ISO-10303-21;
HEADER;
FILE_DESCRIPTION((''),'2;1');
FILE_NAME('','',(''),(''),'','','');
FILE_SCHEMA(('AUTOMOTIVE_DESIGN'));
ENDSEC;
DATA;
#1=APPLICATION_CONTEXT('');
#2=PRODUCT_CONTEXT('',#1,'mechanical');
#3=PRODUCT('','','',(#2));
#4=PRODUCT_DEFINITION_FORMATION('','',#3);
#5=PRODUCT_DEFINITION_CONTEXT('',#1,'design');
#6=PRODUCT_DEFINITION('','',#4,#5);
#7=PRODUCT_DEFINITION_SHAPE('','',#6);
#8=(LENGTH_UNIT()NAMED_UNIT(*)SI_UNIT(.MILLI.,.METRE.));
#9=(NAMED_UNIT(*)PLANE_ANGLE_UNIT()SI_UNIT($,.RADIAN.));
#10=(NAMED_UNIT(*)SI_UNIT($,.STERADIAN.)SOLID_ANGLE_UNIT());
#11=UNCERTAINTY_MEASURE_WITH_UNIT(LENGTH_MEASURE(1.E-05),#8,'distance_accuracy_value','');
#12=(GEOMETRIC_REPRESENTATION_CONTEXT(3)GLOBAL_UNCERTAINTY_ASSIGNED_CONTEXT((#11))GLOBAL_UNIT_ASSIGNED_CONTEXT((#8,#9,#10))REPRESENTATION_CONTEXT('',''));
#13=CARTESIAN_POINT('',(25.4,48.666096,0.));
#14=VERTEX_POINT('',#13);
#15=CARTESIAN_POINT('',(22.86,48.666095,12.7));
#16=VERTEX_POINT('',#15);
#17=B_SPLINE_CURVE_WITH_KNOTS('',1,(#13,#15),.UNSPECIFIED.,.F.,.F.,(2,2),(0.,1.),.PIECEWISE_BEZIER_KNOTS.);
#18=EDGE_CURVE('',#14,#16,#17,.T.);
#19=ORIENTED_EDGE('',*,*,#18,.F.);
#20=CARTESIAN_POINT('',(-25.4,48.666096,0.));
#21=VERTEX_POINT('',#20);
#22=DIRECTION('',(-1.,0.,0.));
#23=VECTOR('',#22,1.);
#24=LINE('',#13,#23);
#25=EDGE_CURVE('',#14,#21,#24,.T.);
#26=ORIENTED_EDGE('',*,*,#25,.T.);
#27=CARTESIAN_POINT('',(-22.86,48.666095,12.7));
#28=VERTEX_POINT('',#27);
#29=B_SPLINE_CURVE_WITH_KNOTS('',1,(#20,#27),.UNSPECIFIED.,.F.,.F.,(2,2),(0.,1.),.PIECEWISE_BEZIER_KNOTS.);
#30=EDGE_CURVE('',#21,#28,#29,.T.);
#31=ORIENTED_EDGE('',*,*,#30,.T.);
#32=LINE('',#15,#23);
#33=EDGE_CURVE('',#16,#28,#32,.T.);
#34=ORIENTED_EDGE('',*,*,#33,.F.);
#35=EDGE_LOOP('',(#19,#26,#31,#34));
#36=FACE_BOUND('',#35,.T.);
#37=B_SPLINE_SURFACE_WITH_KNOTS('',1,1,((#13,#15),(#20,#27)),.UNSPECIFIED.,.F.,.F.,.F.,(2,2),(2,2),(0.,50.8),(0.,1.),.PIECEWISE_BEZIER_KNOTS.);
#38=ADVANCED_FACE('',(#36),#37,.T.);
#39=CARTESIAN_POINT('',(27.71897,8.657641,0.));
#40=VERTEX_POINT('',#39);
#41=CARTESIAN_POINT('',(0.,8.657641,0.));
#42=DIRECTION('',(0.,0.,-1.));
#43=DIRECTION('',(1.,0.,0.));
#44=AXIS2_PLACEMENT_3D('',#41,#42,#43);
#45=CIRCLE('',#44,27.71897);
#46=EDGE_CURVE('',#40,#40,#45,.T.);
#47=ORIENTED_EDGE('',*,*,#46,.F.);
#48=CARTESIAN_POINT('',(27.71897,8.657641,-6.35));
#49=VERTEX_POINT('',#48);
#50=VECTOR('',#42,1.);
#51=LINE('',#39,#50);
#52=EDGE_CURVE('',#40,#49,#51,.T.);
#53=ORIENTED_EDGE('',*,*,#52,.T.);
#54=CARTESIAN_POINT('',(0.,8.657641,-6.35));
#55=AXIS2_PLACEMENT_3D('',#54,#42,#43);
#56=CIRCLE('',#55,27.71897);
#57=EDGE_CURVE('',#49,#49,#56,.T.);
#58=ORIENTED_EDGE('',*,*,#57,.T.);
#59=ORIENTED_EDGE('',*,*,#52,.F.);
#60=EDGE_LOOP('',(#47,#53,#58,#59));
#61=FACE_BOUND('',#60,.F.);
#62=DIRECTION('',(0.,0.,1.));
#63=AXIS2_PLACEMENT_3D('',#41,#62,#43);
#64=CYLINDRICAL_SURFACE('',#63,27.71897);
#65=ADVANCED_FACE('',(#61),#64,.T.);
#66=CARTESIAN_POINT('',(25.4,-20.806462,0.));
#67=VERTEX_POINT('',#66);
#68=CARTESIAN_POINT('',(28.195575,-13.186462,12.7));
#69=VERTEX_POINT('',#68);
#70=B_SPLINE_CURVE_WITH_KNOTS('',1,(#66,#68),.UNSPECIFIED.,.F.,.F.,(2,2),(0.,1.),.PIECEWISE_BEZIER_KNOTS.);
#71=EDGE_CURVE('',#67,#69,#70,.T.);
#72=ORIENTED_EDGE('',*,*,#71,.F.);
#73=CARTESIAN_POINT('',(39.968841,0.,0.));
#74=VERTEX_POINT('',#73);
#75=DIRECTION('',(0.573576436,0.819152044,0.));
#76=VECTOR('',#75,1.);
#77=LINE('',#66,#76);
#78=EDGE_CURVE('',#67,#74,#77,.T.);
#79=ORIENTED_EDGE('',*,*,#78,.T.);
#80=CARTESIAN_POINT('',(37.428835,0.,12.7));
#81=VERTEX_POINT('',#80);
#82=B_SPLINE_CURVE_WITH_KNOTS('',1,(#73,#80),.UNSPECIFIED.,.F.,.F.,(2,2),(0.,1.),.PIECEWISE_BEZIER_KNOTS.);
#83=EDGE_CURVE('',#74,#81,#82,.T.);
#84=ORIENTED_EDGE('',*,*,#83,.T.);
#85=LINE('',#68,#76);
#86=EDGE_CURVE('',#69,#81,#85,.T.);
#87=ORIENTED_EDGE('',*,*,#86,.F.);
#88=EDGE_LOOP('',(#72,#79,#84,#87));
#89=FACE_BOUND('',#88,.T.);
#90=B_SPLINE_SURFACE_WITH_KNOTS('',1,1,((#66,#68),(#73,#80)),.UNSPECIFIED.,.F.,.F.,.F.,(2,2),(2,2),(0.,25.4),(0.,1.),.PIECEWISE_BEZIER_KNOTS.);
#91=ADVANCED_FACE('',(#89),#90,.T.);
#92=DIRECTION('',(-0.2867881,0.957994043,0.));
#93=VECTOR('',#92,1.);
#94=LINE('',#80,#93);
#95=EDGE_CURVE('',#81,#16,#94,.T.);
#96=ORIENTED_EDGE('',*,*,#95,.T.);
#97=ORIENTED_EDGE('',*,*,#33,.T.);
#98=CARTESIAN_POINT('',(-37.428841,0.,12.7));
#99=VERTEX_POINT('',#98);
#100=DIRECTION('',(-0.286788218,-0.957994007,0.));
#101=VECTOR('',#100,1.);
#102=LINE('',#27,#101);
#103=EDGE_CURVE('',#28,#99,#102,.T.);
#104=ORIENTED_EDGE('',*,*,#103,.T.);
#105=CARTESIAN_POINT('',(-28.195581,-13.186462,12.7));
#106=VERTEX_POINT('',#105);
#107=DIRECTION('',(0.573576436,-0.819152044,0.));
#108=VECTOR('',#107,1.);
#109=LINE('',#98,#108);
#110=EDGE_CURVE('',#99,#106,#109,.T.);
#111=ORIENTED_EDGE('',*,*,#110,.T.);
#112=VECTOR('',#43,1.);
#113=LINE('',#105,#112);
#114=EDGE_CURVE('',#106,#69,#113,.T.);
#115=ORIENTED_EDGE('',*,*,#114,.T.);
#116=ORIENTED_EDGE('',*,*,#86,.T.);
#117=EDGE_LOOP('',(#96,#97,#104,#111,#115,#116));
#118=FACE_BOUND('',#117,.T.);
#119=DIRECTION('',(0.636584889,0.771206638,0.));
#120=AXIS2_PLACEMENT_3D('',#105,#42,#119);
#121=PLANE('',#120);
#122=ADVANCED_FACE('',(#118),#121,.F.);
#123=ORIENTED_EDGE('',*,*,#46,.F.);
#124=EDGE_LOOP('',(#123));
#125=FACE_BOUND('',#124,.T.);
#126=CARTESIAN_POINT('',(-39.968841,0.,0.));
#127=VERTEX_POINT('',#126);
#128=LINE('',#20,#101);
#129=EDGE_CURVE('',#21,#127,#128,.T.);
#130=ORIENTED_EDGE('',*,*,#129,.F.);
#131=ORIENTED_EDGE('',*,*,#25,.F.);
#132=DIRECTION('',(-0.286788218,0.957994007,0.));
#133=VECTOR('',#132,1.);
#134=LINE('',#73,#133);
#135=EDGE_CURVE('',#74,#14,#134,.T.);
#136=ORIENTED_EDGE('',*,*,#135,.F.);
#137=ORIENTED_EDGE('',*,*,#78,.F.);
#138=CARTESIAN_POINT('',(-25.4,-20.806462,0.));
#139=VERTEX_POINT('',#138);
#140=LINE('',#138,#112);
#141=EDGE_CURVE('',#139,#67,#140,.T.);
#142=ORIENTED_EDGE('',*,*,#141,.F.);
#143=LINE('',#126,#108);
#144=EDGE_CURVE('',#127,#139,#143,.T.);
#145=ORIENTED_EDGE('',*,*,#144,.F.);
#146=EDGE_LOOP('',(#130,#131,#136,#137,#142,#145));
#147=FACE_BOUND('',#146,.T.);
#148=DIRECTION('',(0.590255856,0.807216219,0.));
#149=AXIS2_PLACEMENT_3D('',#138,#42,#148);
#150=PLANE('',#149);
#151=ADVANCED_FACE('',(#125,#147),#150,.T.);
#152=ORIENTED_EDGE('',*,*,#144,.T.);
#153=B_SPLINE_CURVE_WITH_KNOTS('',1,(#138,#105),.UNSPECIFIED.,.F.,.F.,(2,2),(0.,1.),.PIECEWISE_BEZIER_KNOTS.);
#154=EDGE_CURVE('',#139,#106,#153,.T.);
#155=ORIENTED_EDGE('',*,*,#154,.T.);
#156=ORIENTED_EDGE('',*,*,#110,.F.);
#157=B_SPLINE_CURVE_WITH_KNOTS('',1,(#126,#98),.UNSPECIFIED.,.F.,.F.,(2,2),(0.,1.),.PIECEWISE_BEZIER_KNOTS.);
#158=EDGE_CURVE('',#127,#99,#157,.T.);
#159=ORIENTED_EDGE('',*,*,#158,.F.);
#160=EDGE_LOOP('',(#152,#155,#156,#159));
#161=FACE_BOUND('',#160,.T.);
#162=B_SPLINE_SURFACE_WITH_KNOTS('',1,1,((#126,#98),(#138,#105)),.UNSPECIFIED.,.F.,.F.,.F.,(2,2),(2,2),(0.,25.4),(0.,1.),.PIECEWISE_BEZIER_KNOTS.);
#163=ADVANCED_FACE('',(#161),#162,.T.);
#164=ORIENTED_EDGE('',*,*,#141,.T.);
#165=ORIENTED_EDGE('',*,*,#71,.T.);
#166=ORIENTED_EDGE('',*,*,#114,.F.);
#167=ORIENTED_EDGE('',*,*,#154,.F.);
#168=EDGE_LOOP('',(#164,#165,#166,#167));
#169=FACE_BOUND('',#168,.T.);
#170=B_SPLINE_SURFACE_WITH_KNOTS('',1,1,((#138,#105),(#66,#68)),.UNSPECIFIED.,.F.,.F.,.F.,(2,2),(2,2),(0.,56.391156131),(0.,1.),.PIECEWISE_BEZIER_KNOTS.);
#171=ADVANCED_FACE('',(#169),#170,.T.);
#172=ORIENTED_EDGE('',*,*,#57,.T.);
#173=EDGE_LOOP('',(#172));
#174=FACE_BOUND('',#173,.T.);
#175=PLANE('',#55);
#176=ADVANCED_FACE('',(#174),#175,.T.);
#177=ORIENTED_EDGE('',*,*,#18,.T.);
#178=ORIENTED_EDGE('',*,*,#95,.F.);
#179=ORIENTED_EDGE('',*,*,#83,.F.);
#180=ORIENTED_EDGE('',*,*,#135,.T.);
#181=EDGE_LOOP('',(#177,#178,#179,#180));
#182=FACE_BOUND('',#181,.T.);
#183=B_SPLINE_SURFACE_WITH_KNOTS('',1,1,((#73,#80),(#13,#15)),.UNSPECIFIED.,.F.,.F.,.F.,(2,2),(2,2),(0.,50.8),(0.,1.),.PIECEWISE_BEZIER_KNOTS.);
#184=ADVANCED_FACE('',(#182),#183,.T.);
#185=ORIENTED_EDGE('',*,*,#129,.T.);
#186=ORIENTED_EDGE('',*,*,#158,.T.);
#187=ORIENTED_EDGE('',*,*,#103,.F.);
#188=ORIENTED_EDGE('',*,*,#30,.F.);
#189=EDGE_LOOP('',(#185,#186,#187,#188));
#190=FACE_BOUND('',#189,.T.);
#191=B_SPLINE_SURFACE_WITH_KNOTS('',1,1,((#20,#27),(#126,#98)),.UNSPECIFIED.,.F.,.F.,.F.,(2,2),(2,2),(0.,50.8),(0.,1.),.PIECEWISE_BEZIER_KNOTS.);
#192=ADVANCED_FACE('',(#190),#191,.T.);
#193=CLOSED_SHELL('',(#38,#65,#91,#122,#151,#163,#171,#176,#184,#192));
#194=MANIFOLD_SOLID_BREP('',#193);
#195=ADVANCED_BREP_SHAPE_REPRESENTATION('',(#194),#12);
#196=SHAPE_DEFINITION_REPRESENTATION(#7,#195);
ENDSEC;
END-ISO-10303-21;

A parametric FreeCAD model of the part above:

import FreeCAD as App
import Part
import Sketcher

V = App.Vector
Q = App.Units.Quantity


def add_polygon(sketch, points):
    """Adds a closed chain of lines whose ends are joined by coincident constraints."""
    first, n = sketch.GeometryCount, len(points)
    for a, b in zip(points, points[1:] + points[:1]):
        sketch.addGeometry(Part.LineSegment(App.Vector(*a, 0), App.Vector(*b, 0)), False)
    for i in range(n):
        sketch.addConstraint(Sketcher.Constraint("Coincident", first + i, 2, first + (i + 1) % n, 1))

doc = App.newDocument("Part")
params = doc.addObject("Spreadsheet::Sheet", "Params")
for row, (alias, value) in enumerate([
    ("sketch1_width", "2 in"),
    ("sketch1_length", "1 in"),
    ("sketch1_length2", "2 in"),
    ("sketch2_length", "2 in"),
    ("sketch2_width", "1.8 in"),
    ("pad1_length", "0.25 in"),
], start=1):
    params.set(f"A{row}", alias)
    params.set(f"B{row}", "=" + value)
    params.setAlias(f"B{row}", alias)

body = doc.addObject("PartDesign::Body", "Body")

sketch1 = doc.addObject("Sketcher::SketchObject", "Sketch")
body.addObject(sketch1)
sketch1.AttachmentSupport = (doc.XY_Plane, [""])
sketch1.MapMode = "FlatFace"
add_polygon(sketch1, [(-25, -21), (25, -21), (40, 0), (25, 49), (-25, 49), (-40, 0)])
sketch1.addConstraint(Sketcher.Constraint("Horizontal", 0))
sketch1.addConstraint(Sketcher.Constraint("Horizontal", 3))
sketch1.addConstraint(Sketcher.Constraint("Symmetric", 1, 2, 4, 2, -1, 1))
sketch1.addConstraint(Sketcher.Constraint("PointOnObject", 1, 2, -1))
sketch1.addConstraint(Sketcher.Constraint("Vertical", 0, 2, 2, 2))
sketch1.addConstraint(Sketcher.Constraint("Vertical", 3, 2, 5, 2))
sketch1.addConstraint(Sketcher.Constraint("Equal", 2, 4))
sketch1.addConstraint(Sketcher.Constraint("DistanceX", 0, 1, 0, 2, Q("2 in")))
sketch1.addConstraint(Sketcher.Constraint("Distance", 1, Q("1 in")))
sketch1.addConstraint(Sketcher.Constraint("Distance", 2, Q("2 in")))
sketch1.addConstraint(Sketcher.Constraint("Angle", 1, Q("55 deg")))
sketch1.setExpression("Constraints[13]", "Params.sketch1_width")
sketch1.setExpression("Constraints[14]", "Params.sketch1_length")
sketch1.setExpression("Constraints[15]", "Params.sketch1_length2")

sketch2 = doc.addObject("Sketcher::SketchObject", "Sketch001")
body.addObject(sketch2)
sketch2.AttachmentSupport = (doc.XY_Plane, [""])
sketch2.MapMode = "FlatFace"
sketch2.AttachmentOffset = App.Placement(V(0, 0, 0.5 * 25.4), App.Rotation())
add_polygon(sketch2, [(23, 49), (-23, 49), (-37, 0), (-28, -13), (28, -13), (37, 0)])
sketch2.addConstraint(Sketcher.Constraint("Horizontal", 0))
sketch2.addConstraint(Sketcher.Constraint("Horizontal", 3))
sketch2.addConstraint(Sketcher.Constraint("Symmetric", 1, 2, 4, 2, -1, 1))
sketch2.addConstraint(Sketcher.Constraint("PointOnObject", 1, 2, -1))
sketch2.addConstraint(Sketcher.Constraint("Equal", 2, 4))
sketch2.addConstraint(Sketcher.Constraint("Equal", 1, 5))
sketch2.addConstraint(Sketcher.Constraint("Distance", 1, Q("2 in")))
sketch2.addConstraint(Sketcher.Constraint("DistanceX", 0, 2, 0, 1, Q("1.8 in")))
sketch2.addConstraint(Sketcher.Constraint("Angle", 2, Q("-55 deg")))
sketch2.addConstraint(Sketcher.Constraint("DistanceX", 3, 1, 3, 2, 56.391156))
sketch2.addConstraint(Sketcher.Constraint("DistanceX", 1, 2, -1, 1, 37.428841))
sketch2.setExpression("Constraints[12]", "Params.sketch2_length")
sketch2.setExpression("Constraints[13]", "Params.sketch2_width")

additiveloft = doc.addObject("PartDesign::AdditiveLoft", "AdditiveLoft")
body.addObject(additiveloft)
additiveloft.Profile = sketch1
additiveloft.Sections = [sketch2]

sketch3 = doc.addObject("Sketcher::SketchObject", "Sketch002")
body.addObject(sketch3)
sketch3.AttachmentSupport = (doc.XY_Plane, [""])
sketch3.MapMode = "FlatFace"
sketch3.addGeometry(Part.Circle(V(0, 9, 0), V(0, 0, 1), 28), False)
sketch3.addConstraint(Sketcher.Constraint("PointOnObject", 0, 3, -2))
sketch3.addConstraint(Sketcher.Constraint("Diameter", 0, 55.43794))
sketch3.addConstraint(Sketcher.Constraint("DistanceY", -1, 1, 0, 3, 8.657641))
pad1 = doc.addObject("PartDesign::Pad", "Pad")
body.addObject(pad1)
pad1.Profile = sketch3
pad1.setExpression("Length", "Params.pad1_length")
pad1.Reversed = True

doc.recompute()
